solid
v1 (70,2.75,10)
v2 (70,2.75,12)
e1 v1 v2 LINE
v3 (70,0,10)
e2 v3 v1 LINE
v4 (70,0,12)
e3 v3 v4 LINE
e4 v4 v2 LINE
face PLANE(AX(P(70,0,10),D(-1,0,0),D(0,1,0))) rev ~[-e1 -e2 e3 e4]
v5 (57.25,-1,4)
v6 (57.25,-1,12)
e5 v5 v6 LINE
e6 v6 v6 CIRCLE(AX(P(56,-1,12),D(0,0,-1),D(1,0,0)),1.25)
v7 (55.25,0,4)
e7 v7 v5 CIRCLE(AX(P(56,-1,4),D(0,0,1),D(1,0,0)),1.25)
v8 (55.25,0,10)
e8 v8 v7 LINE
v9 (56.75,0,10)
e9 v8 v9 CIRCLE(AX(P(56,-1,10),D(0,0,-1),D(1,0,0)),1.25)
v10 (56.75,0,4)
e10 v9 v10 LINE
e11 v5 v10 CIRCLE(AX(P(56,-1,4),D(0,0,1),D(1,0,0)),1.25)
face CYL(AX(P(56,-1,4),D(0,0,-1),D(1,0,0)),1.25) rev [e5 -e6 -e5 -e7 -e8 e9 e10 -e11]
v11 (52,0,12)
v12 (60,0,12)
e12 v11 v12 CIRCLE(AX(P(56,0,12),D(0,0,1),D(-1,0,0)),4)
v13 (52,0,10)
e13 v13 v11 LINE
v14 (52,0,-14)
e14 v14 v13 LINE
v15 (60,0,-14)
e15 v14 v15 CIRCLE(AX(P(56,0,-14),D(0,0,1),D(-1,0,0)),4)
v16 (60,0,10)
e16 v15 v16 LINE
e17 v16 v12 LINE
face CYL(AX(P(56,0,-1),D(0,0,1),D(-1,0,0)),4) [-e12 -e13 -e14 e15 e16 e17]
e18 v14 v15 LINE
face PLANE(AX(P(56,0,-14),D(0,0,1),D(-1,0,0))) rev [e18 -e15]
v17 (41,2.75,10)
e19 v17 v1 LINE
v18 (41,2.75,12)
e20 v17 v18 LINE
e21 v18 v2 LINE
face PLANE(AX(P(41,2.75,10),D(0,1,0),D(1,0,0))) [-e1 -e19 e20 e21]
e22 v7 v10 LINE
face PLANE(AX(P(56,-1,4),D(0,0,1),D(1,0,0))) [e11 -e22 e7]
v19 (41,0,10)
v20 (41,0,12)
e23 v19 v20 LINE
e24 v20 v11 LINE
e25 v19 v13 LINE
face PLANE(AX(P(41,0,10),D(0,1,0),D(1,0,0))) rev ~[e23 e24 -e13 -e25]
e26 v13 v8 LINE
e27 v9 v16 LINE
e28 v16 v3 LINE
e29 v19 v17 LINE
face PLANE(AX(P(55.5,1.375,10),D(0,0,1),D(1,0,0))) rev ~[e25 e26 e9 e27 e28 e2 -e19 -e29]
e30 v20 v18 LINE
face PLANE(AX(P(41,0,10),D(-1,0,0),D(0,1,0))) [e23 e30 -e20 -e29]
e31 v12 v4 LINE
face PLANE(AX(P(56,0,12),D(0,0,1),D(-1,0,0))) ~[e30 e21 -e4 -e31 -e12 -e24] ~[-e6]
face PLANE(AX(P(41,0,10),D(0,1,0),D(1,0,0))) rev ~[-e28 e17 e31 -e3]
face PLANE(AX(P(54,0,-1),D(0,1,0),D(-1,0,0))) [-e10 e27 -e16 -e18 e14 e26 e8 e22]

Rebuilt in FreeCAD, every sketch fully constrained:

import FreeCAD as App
import Part
import Sketcher

V = App.Vector

doc = App.newDocument("Part")
params = doc.addObject("Spreadsheet::Sheet", "Params")
for row, (alias, value) in enumerate([
    ("sketch1_diameter", "2.5 mm"),
    ("pad1_length", "10 mm"),
    ("sketch2_width", "4 mm"),
    ("sketch2_height", "26 mm"),
    ("revolution_angle", "180 deg"),
    ("sketch3_width", "29 mm"),
    ("sketch3_height", "2.75 mm"),
    ("pad2_length", "2 mm"),
], start=1):
    params.set(f"A{row}", alias)
    params.set(f"B{row}", "=" + value)
    params.setAlias(f"B{row}", alias)

body = doc.addObject("PartDesign::Body", "Body")

# Sketch on XY plane
sketch1 = body.newObject("Sketcher::SketchObject", "Sketch")
sketch1.AttachmentSupport = (doc.getObject("XY_Plane"), [""])
sketch1.MapMode = "FlatFace"
sketch1.AttachmentOffset = App.Placement(V(0, 0, 4), App.Rotation())
sketch1.addGeometry(Part.Circle(V(57, -1, 0), V(0, 0, 1), 1.2), False)
sketch1.addConstraint([
    Sketcher.Constraint("Diameter", 0, 2.5),
    Sketcher.Constraint("DistanceX", -1, 1, 0, 3, 57.0),
    Sketcher.Constraint("DistanceY", 0, 3, -1, 1, 1.0),
])
sketch1.setExpression("Constraints[0]", "Params.sketch1_diameter")
pad1 = body.newObject("PartDesign::Pad", "Pad")
pad1.Profile = sketch1
pad1.setExpression("Length", "Params.pad1_length")
body2 = doc.addObject("PartDesign::Body", "Body001")

# Sketch on XZ plane
sketch2 = body2.newObject("Sketcher::SketchObject", "Sketch001")
sketch2.AttachmentSupport = (doc.getObject("XZ_Plane001"), [""])
sketch2.MapMode = "FlatFace"
sketch2.addGeometry([
    Part.LineSegment(V(57, 12, 0), V(57, -14, 0)),
    Part.LineSegment(V(57, -14, 0), V(53, -14, 0)),
    Part.LineSegment(V(53, -14, 0), V(53, 12, 0)),
    Part.LineSegment(V(53, 12, 0), V(57, 12, 0)),
], False)
sketch2.addGeometry(Part.LineSegment(V(57, -14, 0), V(57, 12, 0)), True)  # axis
sketch2.addConstraint([
    Sketcher.Constraint("Coincident", 0, 2, 1, 1),
    Sketcher.Constraint("Coincident", 1, 2, 2, 1),
    Sketcher.Constraint("Coincident", 2, 2, 3, 1),
    Sketcher.Constraint("Coincident", 3, 2, 0, 1),
    Sketcher.Constraint("Vertical", 0),
    Sketcher.Constraint("Horizontal", 1),
    Sketcher.Constraint("Vertical", 2),
    Sketcher.Constraint("Horizontal", 3),
    Sketcher.Constraint("Vertical", 4),
    Sketcher.Constraint("Coincident", 4, 1, 0, 2),
    Sketcher.Constraint("Horizontal", 2, 2, 4, 2),
    Sketcher.Constraint("DistanceX", 1, 2, 1, 1, 4.0),
    Sketcher.Constraint("DistanceY", 0, 2, 0, 1, 26.0),
    Sketcher.Constraint("DistanceX", -1, 1, 0, 2, 57.0),
    Sketcher.Constraint("DistanceY", 0, 2, -1, 1, 14.0),
])
sketch2.setExpression("Constraints[11]", "Params.sketch2_width")
sketch2.setExpression("Constraints[12]", "Params.sketch2_height")
revolution = body2.newObject("PartDesign::Revolution", "Revolution")
revolution.Profile = sketch2
revolution.ReferenceAxis = (sketch2, ["Axis0"])
revolution.setExpression("Angle", "Params.revolution_angle")
body3 = doc.addObject("PartDesign::Body", "Body002")

# Sketch on XY plane
sketch3 = body3.newObject("Sketcher::SketchObject", "Sketch002")
sketch3.AttachmentSupport = (doc.getObject("XY_Plane002"), [""])
sketch3.MapMode = "FlatFace"
sketch3.AttachmentOffset = App.Placement(V(0, 0, 10), App.Rotation())
sketch3.addGeometry([
    Part.LineSegment(V(42, 2.8, 0), V(42, 0, 0)),
    Part.LineSegment(V(42, 0, 0), V(71, 0, 0)),
    Part.LineSegment(V(71, 0, 0), V(71, 2.8, 0)),
    Part.LineSegment(V(71, 2.8, 0), V(42, 2.8, 0)),
], False)
sketch3.addConstraint([
    Sketcher.Constraint("Coincident", 0, 2, 1, 1),
    Sketcher.Constraint("Coincident", 1, 2, 2, 1),
    Sketcher.Constraint("Coincident", 2, 2, 3, 1),
    Sketcher.Constraint("Coincident", 3, 2, 0, 1),
    Sketcher.Constraint("Vertical", 0),
    Sketcher.Constraint("Horizontal", 1),
    Sketcher.Constraint("Vertical", 2),
    Sketcher.Constraint("Horizontal", 3),
    Sketcher.Constraint("PointOnObject", 0, 2, -1),
    Sketcher.Constraint("DistanceX", 1, 1, 1, 2, 29.0),
    Sketcher.Constraint("DistanceX", -1, 1, 0, 2, 42.0),
    Sketcher.Constraint("DistanceY", 0, 2, 0, 1, 2.75),
])
sketch3.setExpression("Constraints[9]", "Params.sketch3_width")
sketch3.setExpression("Constraints[11]", "Params.sketch3_height")
pad2 = body3.newObject("PartDesign::Pad", "Pad001")
pad2.Profile = sketch3
pad2.setExpression("Length", "Params.pad2_length")
doc.recompute()

boolean = body3.newObject("PartDesign::Boolean", "Boolean")
boolean.Type = "Fuse"
boolean.addObjects([body2])
doc.recompute()

boolean2 = body3.newObject("PartDesign::Boolean", "Boolean001")
boolean2.Type = "Cut"
boolean2.addObjects([body])
body4 = doc.addObject("PartDesign::Body", "Body003")
doc.recompute()

body3.Placement = App.Placement(V(-1, 0, 0), App.Rotation(V(0, 0, 1), 0))
boolean3 = body4.newObject("PartDesign::Boolean", "Boolean002")
boolean3.Type = "Fuse"
boolean3.addObjects([body3])

doc.recompute()
